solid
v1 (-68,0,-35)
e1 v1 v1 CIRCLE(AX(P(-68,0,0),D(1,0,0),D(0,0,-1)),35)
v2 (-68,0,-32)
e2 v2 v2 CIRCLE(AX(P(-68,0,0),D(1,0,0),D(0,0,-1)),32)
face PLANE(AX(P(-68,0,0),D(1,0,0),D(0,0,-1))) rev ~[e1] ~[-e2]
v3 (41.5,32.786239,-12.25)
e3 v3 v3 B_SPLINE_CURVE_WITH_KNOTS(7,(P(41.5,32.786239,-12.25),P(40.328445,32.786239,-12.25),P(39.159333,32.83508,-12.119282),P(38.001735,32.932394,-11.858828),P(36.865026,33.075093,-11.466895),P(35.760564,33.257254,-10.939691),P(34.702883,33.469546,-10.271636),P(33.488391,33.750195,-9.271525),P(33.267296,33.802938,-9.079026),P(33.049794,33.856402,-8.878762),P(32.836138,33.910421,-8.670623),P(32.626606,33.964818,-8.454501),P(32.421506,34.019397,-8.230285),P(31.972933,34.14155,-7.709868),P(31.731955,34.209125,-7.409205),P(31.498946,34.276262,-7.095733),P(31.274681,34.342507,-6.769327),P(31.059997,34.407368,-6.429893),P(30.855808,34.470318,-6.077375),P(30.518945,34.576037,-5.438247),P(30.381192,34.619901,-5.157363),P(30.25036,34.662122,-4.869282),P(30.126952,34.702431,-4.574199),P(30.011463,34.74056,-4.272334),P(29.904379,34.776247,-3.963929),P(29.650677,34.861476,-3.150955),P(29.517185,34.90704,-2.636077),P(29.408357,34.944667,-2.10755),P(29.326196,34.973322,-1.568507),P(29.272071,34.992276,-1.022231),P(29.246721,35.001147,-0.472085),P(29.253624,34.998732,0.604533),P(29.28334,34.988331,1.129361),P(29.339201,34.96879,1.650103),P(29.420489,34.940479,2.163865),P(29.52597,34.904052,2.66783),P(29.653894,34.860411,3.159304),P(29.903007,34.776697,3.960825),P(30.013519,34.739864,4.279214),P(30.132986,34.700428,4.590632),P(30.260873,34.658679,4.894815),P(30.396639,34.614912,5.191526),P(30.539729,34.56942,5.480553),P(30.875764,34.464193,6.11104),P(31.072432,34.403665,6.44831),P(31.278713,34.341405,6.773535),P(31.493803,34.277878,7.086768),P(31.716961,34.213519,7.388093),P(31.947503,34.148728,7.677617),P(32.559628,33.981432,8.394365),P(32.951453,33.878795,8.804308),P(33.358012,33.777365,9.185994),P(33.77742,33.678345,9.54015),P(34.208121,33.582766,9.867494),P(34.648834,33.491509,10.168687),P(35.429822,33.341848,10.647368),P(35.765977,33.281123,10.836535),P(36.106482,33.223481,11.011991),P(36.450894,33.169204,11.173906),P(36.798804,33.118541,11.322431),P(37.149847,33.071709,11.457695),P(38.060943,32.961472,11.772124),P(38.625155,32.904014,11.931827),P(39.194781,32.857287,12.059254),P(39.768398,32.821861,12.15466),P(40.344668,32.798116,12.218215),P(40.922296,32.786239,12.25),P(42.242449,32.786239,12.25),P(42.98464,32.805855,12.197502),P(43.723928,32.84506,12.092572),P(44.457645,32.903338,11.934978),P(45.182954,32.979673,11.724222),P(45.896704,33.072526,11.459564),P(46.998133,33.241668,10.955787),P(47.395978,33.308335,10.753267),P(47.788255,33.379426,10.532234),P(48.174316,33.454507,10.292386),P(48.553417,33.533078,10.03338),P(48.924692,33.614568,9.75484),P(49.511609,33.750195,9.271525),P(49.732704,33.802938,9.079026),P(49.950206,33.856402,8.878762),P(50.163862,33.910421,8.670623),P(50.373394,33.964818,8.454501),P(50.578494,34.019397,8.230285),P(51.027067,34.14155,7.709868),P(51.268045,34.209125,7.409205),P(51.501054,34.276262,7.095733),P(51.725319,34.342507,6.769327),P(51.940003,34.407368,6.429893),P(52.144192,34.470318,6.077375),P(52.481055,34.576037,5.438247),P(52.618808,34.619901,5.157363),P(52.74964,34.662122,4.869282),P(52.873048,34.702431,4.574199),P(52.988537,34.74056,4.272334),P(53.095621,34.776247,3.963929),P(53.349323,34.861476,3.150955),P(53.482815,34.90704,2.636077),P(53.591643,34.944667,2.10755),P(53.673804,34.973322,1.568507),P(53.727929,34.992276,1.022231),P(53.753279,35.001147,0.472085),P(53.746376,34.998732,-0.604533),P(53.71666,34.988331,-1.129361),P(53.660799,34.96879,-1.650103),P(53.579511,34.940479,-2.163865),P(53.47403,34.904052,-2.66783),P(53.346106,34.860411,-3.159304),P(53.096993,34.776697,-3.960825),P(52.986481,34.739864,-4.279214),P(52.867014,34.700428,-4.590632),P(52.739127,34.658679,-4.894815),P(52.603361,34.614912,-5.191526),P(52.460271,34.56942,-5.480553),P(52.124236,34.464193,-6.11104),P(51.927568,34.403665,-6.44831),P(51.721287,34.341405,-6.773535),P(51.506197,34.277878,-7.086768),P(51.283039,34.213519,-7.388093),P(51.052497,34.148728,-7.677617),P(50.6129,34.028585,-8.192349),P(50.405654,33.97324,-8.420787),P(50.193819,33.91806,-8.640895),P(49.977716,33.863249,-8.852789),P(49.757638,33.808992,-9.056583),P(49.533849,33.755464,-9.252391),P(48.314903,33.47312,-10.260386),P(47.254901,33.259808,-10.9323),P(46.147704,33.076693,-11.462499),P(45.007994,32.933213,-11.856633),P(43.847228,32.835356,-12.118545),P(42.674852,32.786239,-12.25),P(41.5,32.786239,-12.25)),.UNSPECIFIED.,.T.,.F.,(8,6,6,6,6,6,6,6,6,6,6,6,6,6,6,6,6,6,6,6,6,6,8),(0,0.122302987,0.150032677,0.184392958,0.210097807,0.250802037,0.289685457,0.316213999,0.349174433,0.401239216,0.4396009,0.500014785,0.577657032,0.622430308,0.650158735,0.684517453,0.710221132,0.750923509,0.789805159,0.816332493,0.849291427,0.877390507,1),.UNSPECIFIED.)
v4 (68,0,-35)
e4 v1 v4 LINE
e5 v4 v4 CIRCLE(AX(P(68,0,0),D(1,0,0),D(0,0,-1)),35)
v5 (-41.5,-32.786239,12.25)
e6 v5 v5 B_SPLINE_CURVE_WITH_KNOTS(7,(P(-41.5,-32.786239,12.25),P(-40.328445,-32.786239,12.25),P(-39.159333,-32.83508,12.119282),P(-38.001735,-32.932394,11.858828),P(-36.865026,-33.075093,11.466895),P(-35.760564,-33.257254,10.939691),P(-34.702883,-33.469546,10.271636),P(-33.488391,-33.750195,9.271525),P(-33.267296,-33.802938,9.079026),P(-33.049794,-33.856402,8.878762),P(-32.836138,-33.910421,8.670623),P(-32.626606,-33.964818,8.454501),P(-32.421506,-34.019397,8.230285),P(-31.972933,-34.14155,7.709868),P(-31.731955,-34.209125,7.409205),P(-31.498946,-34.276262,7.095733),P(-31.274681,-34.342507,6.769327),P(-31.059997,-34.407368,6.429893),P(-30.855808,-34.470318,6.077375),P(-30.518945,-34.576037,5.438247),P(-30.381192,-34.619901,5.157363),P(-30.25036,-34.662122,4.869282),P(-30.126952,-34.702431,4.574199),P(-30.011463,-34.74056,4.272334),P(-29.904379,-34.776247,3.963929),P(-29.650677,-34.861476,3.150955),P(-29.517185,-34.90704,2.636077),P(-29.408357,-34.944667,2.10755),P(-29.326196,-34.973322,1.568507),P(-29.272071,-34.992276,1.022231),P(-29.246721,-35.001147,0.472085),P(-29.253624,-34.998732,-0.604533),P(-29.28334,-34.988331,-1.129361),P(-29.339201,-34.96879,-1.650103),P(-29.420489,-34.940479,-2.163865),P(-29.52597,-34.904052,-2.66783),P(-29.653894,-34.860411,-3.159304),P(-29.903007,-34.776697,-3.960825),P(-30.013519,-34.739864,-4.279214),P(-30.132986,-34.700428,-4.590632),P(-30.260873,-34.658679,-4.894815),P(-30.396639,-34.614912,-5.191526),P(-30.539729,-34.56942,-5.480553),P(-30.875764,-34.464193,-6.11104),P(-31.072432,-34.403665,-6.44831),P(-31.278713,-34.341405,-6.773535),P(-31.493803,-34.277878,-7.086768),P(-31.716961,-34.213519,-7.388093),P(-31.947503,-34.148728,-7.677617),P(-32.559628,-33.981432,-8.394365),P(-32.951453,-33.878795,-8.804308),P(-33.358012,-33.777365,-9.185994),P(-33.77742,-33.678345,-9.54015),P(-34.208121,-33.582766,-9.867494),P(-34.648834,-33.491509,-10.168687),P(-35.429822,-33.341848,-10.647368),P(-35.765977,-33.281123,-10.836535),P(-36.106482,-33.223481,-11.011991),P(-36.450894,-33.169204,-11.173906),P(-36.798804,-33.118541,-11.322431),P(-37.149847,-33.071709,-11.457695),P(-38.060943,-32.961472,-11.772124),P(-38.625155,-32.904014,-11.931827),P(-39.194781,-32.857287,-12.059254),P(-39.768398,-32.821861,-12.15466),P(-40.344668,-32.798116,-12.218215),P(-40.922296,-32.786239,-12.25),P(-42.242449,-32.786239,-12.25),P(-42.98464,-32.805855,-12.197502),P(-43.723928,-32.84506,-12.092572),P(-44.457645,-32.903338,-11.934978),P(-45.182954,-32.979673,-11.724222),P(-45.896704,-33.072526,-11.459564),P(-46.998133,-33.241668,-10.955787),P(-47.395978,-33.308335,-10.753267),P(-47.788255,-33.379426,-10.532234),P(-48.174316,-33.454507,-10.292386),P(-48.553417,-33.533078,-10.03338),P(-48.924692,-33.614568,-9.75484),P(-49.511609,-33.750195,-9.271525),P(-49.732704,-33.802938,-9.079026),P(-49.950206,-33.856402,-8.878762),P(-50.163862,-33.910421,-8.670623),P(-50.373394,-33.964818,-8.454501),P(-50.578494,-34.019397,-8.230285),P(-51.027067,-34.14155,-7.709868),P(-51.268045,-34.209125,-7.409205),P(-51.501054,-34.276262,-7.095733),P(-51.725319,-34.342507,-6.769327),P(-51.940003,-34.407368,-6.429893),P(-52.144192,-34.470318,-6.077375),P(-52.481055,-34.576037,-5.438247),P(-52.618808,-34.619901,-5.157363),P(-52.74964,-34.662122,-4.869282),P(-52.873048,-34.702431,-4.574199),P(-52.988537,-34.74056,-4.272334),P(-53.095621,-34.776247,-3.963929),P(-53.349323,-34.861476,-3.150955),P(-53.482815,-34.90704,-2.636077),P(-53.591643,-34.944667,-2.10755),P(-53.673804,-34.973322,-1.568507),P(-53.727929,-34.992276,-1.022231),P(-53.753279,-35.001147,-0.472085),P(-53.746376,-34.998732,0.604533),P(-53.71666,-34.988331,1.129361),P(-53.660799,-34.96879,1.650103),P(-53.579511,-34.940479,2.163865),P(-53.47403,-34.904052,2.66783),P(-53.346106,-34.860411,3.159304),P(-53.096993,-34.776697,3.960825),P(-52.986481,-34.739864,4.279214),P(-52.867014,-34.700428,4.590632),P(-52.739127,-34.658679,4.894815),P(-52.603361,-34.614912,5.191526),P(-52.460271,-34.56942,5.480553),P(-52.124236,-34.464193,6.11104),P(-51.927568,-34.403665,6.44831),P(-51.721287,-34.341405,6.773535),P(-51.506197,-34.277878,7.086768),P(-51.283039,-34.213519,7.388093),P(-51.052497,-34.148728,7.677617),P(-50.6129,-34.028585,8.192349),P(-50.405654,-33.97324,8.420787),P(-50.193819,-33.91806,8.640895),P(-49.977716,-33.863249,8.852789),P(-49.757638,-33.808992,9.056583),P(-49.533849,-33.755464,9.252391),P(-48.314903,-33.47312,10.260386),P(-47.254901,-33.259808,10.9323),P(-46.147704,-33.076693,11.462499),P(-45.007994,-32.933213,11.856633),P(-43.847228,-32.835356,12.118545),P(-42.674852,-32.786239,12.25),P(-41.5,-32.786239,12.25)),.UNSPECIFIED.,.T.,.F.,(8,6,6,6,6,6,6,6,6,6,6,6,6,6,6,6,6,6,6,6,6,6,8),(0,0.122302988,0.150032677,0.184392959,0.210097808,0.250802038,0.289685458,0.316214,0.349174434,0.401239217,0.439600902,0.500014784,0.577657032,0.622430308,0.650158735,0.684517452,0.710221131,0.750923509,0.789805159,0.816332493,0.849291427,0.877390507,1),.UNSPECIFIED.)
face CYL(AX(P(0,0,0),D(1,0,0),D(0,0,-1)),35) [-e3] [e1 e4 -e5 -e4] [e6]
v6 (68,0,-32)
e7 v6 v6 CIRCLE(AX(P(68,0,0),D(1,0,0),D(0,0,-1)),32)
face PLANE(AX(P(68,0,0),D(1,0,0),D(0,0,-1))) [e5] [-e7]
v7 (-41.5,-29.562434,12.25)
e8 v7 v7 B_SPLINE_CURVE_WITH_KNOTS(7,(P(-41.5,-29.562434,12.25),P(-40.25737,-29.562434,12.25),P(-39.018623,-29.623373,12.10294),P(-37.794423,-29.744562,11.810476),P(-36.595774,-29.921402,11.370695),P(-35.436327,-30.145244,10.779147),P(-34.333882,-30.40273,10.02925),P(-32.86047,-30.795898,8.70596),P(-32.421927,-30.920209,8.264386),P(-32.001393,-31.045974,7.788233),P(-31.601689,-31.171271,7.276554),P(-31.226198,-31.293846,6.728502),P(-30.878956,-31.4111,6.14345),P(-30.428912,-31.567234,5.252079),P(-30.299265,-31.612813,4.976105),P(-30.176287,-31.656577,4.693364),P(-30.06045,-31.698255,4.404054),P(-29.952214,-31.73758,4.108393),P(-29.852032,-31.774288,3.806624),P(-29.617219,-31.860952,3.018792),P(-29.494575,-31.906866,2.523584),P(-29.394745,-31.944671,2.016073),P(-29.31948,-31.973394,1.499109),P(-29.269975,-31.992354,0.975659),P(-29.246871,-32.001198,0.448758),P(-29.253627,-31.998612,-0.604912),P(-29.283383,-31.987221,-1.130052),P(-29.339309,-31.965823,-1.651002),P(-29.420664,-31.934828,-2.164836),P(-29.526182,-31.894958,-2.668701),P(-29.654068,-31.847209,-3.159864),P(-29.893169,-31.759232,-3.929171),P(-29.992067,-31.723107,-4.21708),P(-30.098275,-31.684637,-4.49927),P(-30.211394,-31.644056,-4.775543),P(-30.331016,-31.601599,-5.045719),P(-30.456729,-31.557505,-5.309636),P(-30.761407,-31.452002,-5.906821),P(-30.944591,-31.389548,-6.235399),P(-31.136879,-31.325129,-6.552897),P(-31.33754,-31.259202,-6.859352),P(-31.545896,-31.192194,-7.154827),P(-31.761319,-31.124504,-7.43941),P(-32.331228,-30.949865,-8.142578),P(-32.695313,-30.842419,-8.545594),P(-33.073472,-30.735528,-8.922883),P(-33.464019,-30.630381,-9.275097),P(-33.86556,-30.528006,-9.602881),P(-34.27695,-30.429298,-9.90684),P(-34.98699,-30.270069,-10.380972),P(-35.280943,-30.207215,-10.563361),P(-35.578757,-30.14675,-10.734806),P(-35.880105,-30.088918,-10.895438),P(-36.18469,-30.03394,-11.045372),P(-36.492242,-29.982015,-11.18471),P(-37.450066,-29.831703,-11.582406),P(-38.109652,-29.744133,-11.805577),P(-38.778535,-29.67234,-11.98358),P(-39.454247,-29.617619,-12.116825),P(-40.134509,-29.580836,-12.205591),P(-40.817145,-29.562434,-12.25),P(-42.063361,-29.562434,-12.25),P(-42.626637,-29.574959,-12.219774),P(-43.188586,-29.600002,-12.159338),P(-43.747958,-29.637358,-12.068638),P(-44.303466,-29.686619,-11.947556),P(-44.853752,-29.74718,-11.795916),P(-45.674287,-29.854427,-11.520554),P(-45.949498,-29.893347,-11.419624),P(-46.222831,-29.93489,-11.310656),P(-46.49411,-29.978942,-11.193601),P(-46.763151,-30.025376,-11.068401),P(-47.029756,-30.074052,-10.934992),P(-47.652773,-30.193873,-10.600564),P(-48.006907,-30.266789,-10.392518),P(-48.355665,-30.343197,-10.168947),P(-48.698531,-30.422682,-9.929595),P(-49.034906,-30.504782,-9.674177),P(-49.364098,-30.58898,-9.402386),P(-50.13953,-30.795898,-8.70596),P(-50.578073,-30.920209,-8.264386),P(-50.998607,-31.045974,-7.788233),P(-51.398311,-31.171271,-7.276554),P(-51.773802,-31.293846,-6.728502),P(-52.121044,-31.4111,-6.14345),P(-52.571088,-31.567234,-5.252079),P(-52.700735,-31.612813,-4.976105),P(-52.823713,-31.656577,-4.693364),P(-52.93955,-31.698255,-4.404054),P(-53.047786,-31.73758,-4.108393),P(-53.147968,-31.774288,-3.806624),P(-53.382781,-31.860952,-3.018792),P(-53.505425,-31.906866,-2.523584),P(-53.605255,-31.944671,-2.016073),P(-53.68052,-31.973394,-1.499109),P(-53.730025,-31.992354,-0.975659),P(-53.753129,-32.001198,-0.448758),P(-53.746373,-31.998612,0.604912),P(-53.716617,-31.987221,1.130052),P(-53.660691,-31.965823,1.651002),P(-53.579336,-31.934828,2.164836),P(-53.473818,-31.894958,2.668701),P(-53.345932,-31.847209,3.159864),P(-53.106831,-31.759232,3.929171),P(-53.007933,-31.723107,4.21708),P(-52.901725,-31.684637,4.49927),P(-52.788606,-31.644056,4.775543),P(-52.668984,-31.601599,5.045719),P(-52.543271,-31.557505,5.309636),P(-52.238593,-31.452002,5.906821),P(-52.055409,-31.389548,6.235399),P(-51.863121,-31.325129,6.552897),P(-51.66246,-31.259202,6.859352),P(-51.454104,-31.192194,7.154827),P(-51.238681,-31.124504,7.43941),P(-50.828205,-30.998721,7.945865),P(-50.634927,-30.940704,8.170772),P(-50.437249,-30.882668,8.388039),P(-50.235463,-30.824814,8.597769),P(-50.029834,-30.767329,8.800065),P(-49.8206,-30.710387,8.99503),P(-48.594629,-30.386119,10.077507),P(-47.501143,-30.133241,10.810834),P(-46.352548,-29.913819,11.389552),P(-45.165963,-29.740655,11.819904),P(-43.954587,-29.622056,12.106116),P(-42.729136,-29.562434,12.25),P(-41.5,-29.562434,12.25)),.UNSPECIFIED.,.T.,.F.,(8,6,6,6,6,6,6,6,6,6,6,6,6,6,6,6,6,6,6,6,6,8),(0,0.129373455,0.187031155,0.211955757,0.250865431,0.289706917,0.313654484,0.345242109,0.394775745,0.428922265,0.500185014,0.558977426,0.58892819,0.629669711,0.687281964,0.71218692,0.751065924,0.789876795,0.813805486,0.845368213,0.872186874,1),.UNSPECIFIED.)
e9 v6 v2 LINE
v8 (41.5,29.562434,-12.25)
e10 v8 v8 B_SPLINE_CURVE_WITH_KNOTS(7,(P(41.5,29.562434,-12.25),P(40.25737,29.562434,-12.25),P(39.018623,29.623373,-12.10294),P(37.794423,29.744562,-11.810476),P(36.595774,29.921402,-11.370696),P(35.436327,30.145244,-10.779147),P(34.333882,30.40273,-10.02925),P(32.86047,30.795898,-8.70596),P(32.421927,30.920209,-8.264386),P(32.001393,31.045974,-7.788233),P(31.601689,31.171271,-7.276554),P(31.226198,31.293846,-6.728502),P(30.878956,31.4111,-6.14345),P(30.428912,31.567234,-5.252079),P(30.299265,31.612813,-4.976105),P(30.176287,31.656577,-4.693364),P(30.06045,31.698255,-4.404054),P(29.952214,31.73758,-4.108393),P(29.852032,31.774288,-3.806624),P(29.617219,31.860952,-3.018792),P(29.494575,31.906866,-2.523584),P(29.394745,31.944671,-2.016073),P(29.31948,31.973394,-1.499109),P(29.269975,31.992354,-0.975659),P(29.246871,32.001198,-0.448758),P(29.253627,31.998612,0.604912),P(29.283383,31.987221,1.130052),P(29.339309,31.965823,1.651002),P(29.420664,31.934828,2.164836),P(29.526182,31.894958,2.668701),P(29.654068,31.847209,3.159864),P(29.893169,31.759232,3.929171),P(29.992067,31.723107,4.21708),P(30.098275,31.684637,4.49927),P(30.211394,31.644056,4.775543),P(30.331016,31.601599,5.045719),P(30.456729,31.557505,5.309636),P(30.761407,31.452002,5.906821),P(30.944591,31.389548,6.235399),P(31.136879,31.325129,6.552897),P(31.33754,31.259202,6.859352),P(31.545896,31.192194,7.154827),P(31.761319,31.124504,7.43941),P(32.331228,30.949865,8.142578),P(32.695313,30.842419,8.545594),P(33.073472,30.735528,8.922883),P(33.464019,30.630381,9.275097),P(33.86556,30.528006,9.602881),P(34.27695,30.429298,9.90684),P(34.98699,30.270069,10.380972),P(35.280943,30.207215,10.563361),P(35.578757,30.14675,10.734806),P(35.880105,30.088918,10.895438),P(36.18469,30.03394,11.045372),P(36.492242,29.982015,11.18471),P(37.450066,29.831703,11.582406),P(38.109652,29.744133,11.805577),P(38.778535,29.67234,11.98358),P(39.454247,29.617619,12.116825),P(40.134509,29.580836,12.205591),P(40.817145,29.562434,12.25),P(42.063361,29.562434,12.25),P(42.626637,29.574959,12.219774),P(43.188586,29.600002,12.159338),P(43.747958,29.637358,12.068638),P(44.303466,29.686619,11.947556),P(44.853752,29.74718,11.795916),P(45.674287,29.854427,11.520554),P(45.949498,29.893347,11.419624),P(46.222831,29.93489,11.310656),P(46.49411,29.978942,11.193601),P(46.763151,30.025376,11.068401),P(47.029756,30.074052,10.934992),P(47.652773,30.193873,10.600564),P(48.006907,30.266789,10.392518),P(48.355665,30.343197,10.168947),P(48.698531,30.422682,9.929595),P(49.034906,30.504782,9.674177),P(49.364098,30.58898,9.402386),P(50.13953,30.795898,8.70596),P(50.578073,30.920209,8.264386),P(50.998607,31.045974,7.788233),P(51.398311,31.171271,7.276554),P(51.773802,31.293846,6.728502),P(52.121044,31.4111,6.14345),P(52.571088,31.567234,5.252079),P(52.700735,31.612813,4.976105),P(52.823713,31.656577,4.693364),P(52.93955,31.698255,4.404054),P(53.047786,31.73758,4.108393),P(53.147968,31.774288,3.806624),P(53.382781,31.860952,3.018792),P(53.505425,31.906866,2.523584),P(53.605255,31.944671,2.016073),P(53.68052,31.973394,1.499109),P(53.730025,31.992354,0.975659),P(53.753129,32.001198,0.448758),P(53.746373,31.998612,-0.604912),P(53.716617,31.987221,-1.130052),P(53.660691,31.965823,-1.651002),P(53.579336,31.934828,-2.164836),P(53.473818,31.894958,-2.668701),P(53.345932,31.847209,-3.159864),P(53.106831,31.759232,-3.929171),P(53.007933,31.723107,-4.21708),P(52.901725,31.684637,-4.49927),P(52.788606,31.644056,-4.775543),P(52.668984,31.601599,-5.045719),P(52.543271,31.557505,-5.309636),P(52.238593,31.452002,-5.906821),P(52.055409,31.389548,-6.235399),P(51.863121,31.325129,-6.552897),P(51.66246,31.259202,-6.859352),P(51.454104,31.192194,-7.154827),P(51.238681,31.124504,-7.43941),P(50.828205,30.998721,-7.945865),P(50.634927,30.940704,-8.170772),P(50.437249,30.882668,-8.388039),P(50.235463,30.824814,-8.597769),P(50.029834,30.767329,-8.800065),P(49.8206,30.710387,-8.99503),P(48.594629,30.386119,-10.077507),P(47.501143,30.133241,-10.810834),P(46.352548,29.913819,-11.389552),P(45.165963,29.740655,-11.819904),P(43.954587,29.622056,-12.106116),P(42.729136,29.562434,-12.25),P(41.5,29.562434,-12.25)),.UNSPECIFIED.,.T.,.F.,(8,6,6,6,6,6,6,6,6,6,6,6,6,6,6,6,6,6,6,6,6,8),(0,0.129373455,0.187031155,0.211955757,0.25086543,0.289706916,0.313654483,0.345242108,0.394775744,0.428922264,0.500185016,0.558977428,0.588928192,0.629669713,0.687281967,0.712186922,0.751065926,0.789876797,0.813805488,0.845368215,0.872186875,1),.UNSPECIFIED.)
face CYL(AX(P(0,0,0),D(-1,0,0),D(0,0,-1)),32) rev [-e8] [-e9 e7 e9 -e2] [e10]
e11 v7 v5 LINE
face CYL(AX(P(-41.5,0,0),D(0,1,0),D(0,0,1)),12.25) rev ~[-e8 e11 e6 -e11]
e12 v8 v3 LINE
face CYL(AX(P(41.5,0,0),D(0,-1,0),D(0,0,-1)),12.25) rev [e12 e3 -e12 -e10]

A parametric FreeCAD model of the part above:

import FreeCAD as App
import Part
import Sketcher

doc = App.newDocument("Part")
body = doc.addObject("PartDesign::Body", "Body")

sketch1 = body.newObject("Sketcher::SketchObject", "Sketch")
sketch1.AttachmentSupport = (doc.getObject("YZ_Plane"), [""])
sketch1.MapMode = "FlatFace"
sketch1.addGeometry([
    Part.Circle(App.Vector(0, 0, 0), App.Vector(0, 0, 1), 35),
    Part.Circle(App.Vector(0, 0, 0), App.Vector(0, 0, 1), 32),
], False)
sketch1.addConstraint([
    Sketcher.Constraint("Coincident", 0, 3, -1, 1),
    Sketcher.Constraint("Coincident", 1, 3, -1, 1),
    Sketcher.Constraint("Diameter", 0, 70.0),
    Sketcher.Constraint("Diameter", 1, 64.0),
])
pad1 = body.newObject("PartDesign::Pad", "Pad")
pad1.Profile = sketch1
pad1.Length = 136
pad1.Midplane = True

sketch2 = body.newObject("Sketcher::SketchObject", "Sketch001")
sketch2.AttachmentSupport = (doc.getObject("XZ_Plane"), [""])
sketch2.MapMode = "FlatFace"
sketch2.addGeometry(Part.Circle(App.Vector(-42, 0, 0), App.Vector(0, 0, 1), 12), False)
sketch2.addConstraint([
    Sketcher.Constraint("PointOnObject", 0, 3, -1),
    Sketcher.Constraint("Diameter", 0, 24.5),
    Sketcher.Constraint("DistanceX", 0, 3, -1, 1, 41.5),
])
pocket1 = body.newObject("PartDesign::Pocket", "Pocket")
pocket1.Profile = sketch2
pocket1.Type = "ThroughAll"
pocket1.Reversed = True

sketch3 = body.newObject("Sketcher::SketchObject", "Sketch002")
sketch3.AttachmentSupport = (doc.getObject("XZ_Plane"), [""])
sketch3.MapMode = "FlatFace"
sketch3.addGeometry(Part.Circle(App.Vector(42, 0, 0), App.Vector(0, 0, 1), 12), False)
sketch3.addConstraint([
    Sketcher.Constraint("PointOnObject", 0, 3, -1),
    Sketcher.Constraint("Diameter", 0, 24.5),
    Sketcher.Constraint("DistanceX", -1, 1, 0, 3, 41.5),
])
pocket2 = body.newObject("PartDesign::Pocket", "Pocket001")
pocket2.Profile = sketch3
pocket2.Type = "ThroughAll"

doc.recompute()
